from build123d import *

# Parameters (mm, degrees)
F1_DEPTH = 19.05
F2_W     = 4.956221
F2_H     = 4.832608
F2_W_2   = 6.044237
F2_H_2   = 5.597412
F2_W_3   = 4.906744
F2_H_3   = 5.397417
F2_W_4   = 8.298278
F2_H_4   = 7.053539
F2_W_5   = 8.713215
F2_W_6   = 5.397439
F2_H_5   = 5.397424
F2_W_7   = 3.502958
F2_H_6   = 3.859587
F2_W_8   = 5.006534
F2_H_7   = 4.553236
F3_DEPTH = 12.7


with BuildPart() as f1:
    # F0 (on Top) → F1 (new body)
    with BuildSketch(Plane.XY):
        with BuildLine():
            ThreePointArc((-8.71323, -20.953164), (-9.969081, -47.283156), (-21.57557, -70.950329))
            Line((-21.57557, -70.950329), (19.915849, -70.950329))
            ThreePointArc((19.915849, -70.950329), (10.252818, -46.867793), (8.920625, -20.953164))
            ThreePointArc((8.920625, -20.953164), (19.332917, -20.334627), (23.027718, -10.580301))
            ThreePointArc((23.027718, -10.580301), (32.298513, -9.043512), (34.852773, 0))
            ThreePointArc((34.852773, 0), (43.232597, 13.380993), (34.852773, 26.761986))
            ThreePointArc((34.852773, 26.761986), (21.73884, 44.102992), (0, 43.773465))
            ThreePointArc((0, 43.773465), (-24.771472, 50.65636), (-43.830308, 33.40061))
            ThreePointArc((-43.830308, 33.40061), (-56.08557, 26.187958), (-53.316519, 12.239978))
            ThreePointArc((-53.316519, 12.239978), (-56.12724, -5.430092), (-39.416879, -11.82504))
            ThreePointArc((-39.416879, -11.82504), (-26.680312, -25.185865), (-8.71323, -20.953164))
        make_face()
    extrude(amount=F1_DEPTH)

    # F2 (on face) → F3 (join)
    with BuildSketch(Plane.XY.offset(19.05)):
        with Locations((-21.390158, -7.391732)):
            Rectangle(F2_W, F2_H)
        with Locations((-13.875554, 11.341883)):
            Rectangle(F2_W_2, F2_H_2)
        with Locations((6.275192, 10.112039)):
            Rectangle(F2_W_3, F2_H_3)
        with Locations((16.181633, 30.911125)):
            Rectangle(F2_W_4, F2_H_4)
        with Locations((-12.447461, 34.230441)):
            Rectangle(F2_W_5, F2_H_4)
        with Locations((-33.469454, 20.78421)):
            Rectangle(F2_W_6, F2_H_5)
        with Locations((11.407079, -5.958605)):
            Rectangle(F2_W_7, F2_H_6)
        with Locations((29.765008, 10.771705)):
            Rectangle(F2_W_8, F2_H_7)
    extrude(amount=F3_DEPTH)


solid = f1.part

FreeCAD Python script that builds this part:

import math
import FreeCAD as App
import Part
import Sketcher

V = App.Vector
Q = App.Units.Quantity


def add_polygon(sketch, points):
    """Adds a closed chain of lines whose ends are joined by coincident constraints."""
    first, n = sketch.GeometryCount, len(points)
    for a, b in zip(points, points[1:] + points[:1]):
        sketch.addGeometry(Part.LineSegment(App.Vector(*a, 0), App.Vector(*b, 0)), False)
    for i in range(n):
        sketch.addConstraint(Sketcher.Constraint("Coincident", first + i, 2, first + (i + 1) % n, 1))

doc = App.newDocument("Part")
body = doc.addObject("PartDesign::Body", "Body")

# Sketch on XY plane
sketch1 = body.newObject("Sketcher::SketchObject", "Sketch")
sketch1.AttachmentSupport = (doc.getObject("XY_Plane"), [""])
sketch1.MapMode = "FlatFace"
sketch1.addGeometry([
    Part.ArcOfCircle(Part.Circle(V(-73, -31, 0), V(0, 0, 1), 65), math.radians(-38), math.radians(9)),  # 0
    Part.LineSegment(V(-22, -71, 0), V(20, -71, 0)),  # 1
    Part.ArcOfCircle(Part.Circle(V(87, -30, 0), V(0, 0, 1), 79), math.radians(173), math.radians(211)),  # 2
    Part.ArcOfCircle(Part.Circle(V(14, -13, 0), V(0, 0, 1), 10), math.radians(-120), math.radians(12)),  # 3
    Part.ArcOfCircle(Part.Circle(V(26, -3, 0), V(0, 0, 1), 9), math.radians(-113), math.radians(17)),  # 4
    Part.ArcOfCircle(Part.Circle(V(28, 13, 0), V(0, 0, 1), 15), math.radians(-64), math.radians(64)),  # 5
    Part.ArcOfCircle(Part.Circle(V(11, 22, 0), V(0, 0, 1), 24), math.radians(10), math.radians(118)),  # 6
    Part.ArcOfCircle(Part.Circle(V(-19, 25, 0), V(0, 0, 1), 27), math.radians(46), math.radians(161)),  # 7
    Part.ArcOfCircle(Part.Circle(V(-45, 21, 0), V(0, 0, 1), 12), math.radians(85), math.radians(227)),  # 8
    Part.ArcOfCircle(Part.Circle(V(-44, 2, 0), V(0, 0, 1), 14), math.radians(132), math.radians(288)),  # 9
    Part.ArcOfCircle(Part.Circle(V(-21, -7, 0), V(0, 0, 1), 19), math.radians(-166), math.radians(-47)),  # 10
], False)
sketch1.addConstraint([
    Sketcher.Constraint("Coincident", 0, 1, 1, 1),
    Sketcher.Constraint("Coincident", 1, 2, 2, 2),
    Sketcher.Constraint("Coincident", 2, 1, 3, 1),
    Sketcher.Constraint("Coincident", 3, 2, 4, 1),
    Sketcher.Constraint("Coincident", 4, 2, 5, 1),
    Sketcher.Constraint("Coincident", 5, 2, 6, 1),
    Sketcher.Constraint("Coincident", 6, 2, 7, 1),
    Sketcher.Constraint("Coincident", 7, 2, 8, 1),
    Sketcher.Constraint("Coincident", 8, 2, 9, 1),
    Sketcher.Constraint("Coincident", 9, 2, 10, 1),
    Sketcher.Constraint("Coincident", 10, 2, 0, 2),
    Sketcher.Constraint("Horizontal", 1),
    Sketcher.Constraint("PointOnObject", 4, 2, -1),
    Sketcher.Constraint("PointOnObject", 6, 2, -2),
    Sketcher.Constraint("Horizontal", 2, 1, 10, 2),
    Sketcher.Constraint("Vertical", 4, 2, 5, 2),
    Sketcher.Constraint("Vertical", 9, 3, 7, 2),
    Sketcher.Constraint("Radius", 4, Q("8.767049 mm")),
    Sketcher.Constraint("Radius", 5, Q("14.873369 mm")),
    Sketcher.Constraint("Radius", 6, Q("24.039251 mm")),
    Sketcher.Constraint("Radius", 8, Q("12.281469 mm")),
    Sketcher.Constraint("Radius", 9, Q("14.20073 mm")),
    Sketcher.Constraint("Radius", 10, Q("18.563861 mm")),
    Sketcher.Constraint("DistanceY", 10, 2, 9, 2, Q("0.359375 in")),
    Sketcher.Constraint("Radius", 0, Q("65.013758 mm")),
    Sketcher.Constraint("Radius", 2, Q("78.938985 mm")),
    Sketcher.Constraint("Radius", 3, Q("9.594526 mm")),
    Sketcher.Constraint("Radius", 7, Q("26.647416 mm")),
    Sketcher.Constraint("DistanceX", 1, 1, 1, 2, Q("41.491419 mm")),
    Sketcher.Constraint("DistanceY", 3, 2, -1, 1, Q("10.580301 mm")),
    Sketcher.Constraint("DistanceX", 6, 3, 4, 3, Q("15.258299 mm")),
    Sketcher.Constraint("DistanceX", 9, 3, 6, 3, Q("55.024701 mm")),
    Sketcher.Constraint("DistanceY", 10, 3, 8, 3, Q("28.555701 mm")),
    Sketcher.Constraint("DistanceY", 1, 2, 2, 3, Q("41.0374 mm")),
    Sketcher.Constraint("DistanceY", 2, 3, -1, 1, Q("29.912929 mm")),
    Sketcher.Constraint("DistanceX", -1, 1, 3, 3, Q("13.649212 mm")),
    Sketcher.Constraint("DistanceY", 4, 3, -1, 1, Q("2.509942 mm")),
    Sketcher.Constraint("DistanceX", -1, 1, 5, 3, Q("28.359228 mm")),
    Sketcher.Constraint("DistanceY", -1, 1, 8, 3, Q("21.16397 mm")),
    Sketcher.Constraint("DistanceX", 0, 1, -1, 1, Q("21.57557 mm")),
    Sketcher.Constraint("DistanceY", -1, 1, 7, 2, Q("33.40061 mm")),
    Sketcher.Constraint("DistanceX", 8, 2, -1, 1, Q("53.316519 mm")),
    Sketcher.Constraint("DistanceX", 9, 2, -1, 1, Q("39.416879 mm")),
])
pad1 = body.newObject("PartDesign::Pad", "Pad")
pad1.Profile = sketch1
pad1.Length = Q("0.75 in")

# Sketch on XY plane
sketch2 = body.newObject("Sketcher::SketchObject", "Sketch001")
sketch2.AttachmentSupport = (doc.getObject("XY_Plane"), [""])
sketch2.MapMode = "FlatFace"
sketch2.AttachmentOffset = App.Placement(V(0, 0, 0.75 * 25.4), App.Rotation())
add_polygon(sketch2, [(-23.9, -5), (-23.9, -9.8), (-18.9, -9.8), (-18.9, -5)])  # lines 0-3
add_polygon(sketch2, [(-16.9, 14.1), (-16.9, 8.5), (-10.9, 8.5), (-10.9, 14.1)])  # lines 4-7
add_polygon(sketch2, [(3.8, 12.8), (3.8, 7.4), (8.7, 7.4), (8.7, 12.8)])  # lines 8-11
add_polygon(sketch2, [(12, 34.4), (12, 27.4), (20.3, 27.4), (20.3, 34.4)])  # lines 12-15
add_polygon(sketch2, [(-16.8, 37.8), (-16.8, 30.7), (-8.1, 30.7), (-8.1, 37.8)])  # lines 16-19
add_polygon(sketch2, [(-36.2, 23.5), (-36.2, 18.1), (-30.8, 18.1), (-30.8, 23.5)])  # lines 20-23
add_polygon(sketch2, [(9.7, -4), (9.7, -7.9), (13.2, -7.9), (13.2, -4)])  # lines 24-27
add_polygon(sketch2, [(27.3, 13), (27.3, 8.5), (32.3, 8.5), (32.3, 13)])  # lines 28-31
sketch2.addConstraint([
    Sketcher.Constraint("Vertical", 0),
    Sketcher.Constraint("Horizontal", 1),
    Sketcher.Constraint("Vertical", 2),
    Sketcher.Constraint("Horizontal", 3),
    Sketcher.Constraint("Vertical", 4),
    Sketcher.Constraint("Horizontal", 5),
    Sketcher.Constraint("Vertical", 6),
    Sketcher.Constraint("Horizontal", 7),
    Sketcher.Constraint("Vertical", 8),
    Sketcher.Constraint("Horizontal", 9),
    Sketcher.Constraint("Vertical", 10),
    Sketcher.Constraint("Horizontal", 11),
    Sketcher.Constraint("Vertical", 12),
    Sketcher.Constraint("Horizontal", 13),
    Sketcher.Constraint("Vertical", 14),
    Sketcher.Constraint("Horizontal", 15),
    Sketcher.Constraint("Vertical", 16),
    Sketcher.Constraint("Horizontal", 17),
    Sketcher.Constraint("Vertical", 18),
    Sketcher.Constraint("Horizontal", 19),
    Sketcher.Constraint("Vertical", 20),
    Sketcher.Constraint("Horizontal", 21),
    Sketcher.Constraint("Vertical", 22),
    Sketcher.Constraint("Horizontal", 23),
    Sketcher.Constraint("Vertical", 24),
    Sketcher.Constraint("Horizontal", 25),
    Sketcher.Constraint("Vertical", 26),
    Sketcher.Constraint("Horizontal", 27),
    Sketcher.Constraint("Vertical", 28),
    Sketcher.Constraint("Horizontal", 29),
    Sketcher.Constraint("Vertical", 30),
    Sketcher.Constraint("Horizontal", 31),
    Sketcher.Constraint("Equal", 14, 16),
    Sketcher.Constraint("DistanceX", 1, 1, 1, 2, Q("4.956221 mm")),
    Sketcher.Constraint("DistanceX", 21, 1, 21, 2, Q("5.397439 mm")),
    Sketcher.Constraint("DistanceY", 12, 2, 12, 1, Q("7.053539 mm")),
    Sketcher.Constraint("DistanceY", -1, 1, 20, 2, Q("18.085498 mm")),
    Sketcher.Constraint("DistanceX", -1, 1, 24, 2, Q("9.6556 mm")),
    Sketcher.Constraint("DistanceY", 24, 2, -1, 1, Q("7.888399 mm")),
    Sketcher.Constraint("DistanceX", 5, 2, 9, 2, Q("19.582 mm")),
    Sketcher.Constraint("DistanceX", 20, 2, 7, 2, Q("19.270501 mm")),
    Sketcher.Constraint("DistanceX", 21, 2, 6, 2, Q("19.917299 mm")),
    Sketcher.Constraint("DistanceY", 26, 2, 28, 2, Q("12.523898 mm")),
    Sketcher.Constraint("DistanceX", 9, 1, 9, 2, Q("4.906744 mm")),
    Sketcher.Constraint("DistanceX", 13, 1, 13, 2, Q("8.298278 mm")),
    Sketcher.Constraint("DistanceX", 17, 1, 17, 2, Q("8.713215 mm")),
    Sketcher.Constraint("DistanceX", 25, 1, 25, 2, Q("3.502958 mm")),
    Sketcher.Constraint("DistanceX", 29, 1, 29, 2, Q("5.006534 mm")),
    Sketcher.Constraint("DistanceY", 0, 2, 0, 1, Q("4.832608 mm")),
    Sketcher.Constraint("DistanceY", 4, 2, 4, 1, Q("5.597412 mm")),
    Sketcher.Constraint("DistanceY", 8, 2, 8, 1, Q("5.397417 mm")),
    Sketcher.Constraint("DistanceY", 20, 2, 20, 1, Q("5.397424 mm")),
    Sketcher.Constraint("DistanceY", 24, 2, 24, 1, Q("3.859587 mm")),
    Sketcher.Constraint("DistanceY", 28, 2, 28, 1, Q("4.553236 mm")),
    Sketcher.Constraint("DistanceX", 0, 2, -1, 1, Q("23.868268 mm")),
    Sketcher.Constraint("DistanceY", -1, 1, 6, 2, Q("14.140589 mm")),
    Sketcher.Constraint("DistanceX", -1, 1, 8, 2, Q("3.82182 mm")),
    Sketcher.Constraint("DistanceY", -1, 1, 8, 2, Q("7.41333 mm")),
    Sketcher.Constraint("DistanceX", -1, 1, 13, 2, Q("20.330772 mm")),
    Sketcher.Constraint("DistanceX", 16, 2, -1, 1, Q("16.804068 mm")),
    Sketcher.Constraint("DistanceY", -1, 1, 16, 2, Q("30.703671 mm")),
    Sketcher.Constraint("DistanceX", -1, 1, 28, 2, Q("27.261741 mm")),
    Sketcher.Constraint("DistanceY", 2, 2, 8, 2, Q("12.388758 mm")),
    Sketcher.Constraint("DistanceY", 10, 2, 12, 2, Q("14.573608 mm")),
])
pad2 = body.newObject("PartDesign::Pad", "Pad001")
pad2.Profile = sketch2
pad2.Length = Q("0.5 in")

doc.recompute()
